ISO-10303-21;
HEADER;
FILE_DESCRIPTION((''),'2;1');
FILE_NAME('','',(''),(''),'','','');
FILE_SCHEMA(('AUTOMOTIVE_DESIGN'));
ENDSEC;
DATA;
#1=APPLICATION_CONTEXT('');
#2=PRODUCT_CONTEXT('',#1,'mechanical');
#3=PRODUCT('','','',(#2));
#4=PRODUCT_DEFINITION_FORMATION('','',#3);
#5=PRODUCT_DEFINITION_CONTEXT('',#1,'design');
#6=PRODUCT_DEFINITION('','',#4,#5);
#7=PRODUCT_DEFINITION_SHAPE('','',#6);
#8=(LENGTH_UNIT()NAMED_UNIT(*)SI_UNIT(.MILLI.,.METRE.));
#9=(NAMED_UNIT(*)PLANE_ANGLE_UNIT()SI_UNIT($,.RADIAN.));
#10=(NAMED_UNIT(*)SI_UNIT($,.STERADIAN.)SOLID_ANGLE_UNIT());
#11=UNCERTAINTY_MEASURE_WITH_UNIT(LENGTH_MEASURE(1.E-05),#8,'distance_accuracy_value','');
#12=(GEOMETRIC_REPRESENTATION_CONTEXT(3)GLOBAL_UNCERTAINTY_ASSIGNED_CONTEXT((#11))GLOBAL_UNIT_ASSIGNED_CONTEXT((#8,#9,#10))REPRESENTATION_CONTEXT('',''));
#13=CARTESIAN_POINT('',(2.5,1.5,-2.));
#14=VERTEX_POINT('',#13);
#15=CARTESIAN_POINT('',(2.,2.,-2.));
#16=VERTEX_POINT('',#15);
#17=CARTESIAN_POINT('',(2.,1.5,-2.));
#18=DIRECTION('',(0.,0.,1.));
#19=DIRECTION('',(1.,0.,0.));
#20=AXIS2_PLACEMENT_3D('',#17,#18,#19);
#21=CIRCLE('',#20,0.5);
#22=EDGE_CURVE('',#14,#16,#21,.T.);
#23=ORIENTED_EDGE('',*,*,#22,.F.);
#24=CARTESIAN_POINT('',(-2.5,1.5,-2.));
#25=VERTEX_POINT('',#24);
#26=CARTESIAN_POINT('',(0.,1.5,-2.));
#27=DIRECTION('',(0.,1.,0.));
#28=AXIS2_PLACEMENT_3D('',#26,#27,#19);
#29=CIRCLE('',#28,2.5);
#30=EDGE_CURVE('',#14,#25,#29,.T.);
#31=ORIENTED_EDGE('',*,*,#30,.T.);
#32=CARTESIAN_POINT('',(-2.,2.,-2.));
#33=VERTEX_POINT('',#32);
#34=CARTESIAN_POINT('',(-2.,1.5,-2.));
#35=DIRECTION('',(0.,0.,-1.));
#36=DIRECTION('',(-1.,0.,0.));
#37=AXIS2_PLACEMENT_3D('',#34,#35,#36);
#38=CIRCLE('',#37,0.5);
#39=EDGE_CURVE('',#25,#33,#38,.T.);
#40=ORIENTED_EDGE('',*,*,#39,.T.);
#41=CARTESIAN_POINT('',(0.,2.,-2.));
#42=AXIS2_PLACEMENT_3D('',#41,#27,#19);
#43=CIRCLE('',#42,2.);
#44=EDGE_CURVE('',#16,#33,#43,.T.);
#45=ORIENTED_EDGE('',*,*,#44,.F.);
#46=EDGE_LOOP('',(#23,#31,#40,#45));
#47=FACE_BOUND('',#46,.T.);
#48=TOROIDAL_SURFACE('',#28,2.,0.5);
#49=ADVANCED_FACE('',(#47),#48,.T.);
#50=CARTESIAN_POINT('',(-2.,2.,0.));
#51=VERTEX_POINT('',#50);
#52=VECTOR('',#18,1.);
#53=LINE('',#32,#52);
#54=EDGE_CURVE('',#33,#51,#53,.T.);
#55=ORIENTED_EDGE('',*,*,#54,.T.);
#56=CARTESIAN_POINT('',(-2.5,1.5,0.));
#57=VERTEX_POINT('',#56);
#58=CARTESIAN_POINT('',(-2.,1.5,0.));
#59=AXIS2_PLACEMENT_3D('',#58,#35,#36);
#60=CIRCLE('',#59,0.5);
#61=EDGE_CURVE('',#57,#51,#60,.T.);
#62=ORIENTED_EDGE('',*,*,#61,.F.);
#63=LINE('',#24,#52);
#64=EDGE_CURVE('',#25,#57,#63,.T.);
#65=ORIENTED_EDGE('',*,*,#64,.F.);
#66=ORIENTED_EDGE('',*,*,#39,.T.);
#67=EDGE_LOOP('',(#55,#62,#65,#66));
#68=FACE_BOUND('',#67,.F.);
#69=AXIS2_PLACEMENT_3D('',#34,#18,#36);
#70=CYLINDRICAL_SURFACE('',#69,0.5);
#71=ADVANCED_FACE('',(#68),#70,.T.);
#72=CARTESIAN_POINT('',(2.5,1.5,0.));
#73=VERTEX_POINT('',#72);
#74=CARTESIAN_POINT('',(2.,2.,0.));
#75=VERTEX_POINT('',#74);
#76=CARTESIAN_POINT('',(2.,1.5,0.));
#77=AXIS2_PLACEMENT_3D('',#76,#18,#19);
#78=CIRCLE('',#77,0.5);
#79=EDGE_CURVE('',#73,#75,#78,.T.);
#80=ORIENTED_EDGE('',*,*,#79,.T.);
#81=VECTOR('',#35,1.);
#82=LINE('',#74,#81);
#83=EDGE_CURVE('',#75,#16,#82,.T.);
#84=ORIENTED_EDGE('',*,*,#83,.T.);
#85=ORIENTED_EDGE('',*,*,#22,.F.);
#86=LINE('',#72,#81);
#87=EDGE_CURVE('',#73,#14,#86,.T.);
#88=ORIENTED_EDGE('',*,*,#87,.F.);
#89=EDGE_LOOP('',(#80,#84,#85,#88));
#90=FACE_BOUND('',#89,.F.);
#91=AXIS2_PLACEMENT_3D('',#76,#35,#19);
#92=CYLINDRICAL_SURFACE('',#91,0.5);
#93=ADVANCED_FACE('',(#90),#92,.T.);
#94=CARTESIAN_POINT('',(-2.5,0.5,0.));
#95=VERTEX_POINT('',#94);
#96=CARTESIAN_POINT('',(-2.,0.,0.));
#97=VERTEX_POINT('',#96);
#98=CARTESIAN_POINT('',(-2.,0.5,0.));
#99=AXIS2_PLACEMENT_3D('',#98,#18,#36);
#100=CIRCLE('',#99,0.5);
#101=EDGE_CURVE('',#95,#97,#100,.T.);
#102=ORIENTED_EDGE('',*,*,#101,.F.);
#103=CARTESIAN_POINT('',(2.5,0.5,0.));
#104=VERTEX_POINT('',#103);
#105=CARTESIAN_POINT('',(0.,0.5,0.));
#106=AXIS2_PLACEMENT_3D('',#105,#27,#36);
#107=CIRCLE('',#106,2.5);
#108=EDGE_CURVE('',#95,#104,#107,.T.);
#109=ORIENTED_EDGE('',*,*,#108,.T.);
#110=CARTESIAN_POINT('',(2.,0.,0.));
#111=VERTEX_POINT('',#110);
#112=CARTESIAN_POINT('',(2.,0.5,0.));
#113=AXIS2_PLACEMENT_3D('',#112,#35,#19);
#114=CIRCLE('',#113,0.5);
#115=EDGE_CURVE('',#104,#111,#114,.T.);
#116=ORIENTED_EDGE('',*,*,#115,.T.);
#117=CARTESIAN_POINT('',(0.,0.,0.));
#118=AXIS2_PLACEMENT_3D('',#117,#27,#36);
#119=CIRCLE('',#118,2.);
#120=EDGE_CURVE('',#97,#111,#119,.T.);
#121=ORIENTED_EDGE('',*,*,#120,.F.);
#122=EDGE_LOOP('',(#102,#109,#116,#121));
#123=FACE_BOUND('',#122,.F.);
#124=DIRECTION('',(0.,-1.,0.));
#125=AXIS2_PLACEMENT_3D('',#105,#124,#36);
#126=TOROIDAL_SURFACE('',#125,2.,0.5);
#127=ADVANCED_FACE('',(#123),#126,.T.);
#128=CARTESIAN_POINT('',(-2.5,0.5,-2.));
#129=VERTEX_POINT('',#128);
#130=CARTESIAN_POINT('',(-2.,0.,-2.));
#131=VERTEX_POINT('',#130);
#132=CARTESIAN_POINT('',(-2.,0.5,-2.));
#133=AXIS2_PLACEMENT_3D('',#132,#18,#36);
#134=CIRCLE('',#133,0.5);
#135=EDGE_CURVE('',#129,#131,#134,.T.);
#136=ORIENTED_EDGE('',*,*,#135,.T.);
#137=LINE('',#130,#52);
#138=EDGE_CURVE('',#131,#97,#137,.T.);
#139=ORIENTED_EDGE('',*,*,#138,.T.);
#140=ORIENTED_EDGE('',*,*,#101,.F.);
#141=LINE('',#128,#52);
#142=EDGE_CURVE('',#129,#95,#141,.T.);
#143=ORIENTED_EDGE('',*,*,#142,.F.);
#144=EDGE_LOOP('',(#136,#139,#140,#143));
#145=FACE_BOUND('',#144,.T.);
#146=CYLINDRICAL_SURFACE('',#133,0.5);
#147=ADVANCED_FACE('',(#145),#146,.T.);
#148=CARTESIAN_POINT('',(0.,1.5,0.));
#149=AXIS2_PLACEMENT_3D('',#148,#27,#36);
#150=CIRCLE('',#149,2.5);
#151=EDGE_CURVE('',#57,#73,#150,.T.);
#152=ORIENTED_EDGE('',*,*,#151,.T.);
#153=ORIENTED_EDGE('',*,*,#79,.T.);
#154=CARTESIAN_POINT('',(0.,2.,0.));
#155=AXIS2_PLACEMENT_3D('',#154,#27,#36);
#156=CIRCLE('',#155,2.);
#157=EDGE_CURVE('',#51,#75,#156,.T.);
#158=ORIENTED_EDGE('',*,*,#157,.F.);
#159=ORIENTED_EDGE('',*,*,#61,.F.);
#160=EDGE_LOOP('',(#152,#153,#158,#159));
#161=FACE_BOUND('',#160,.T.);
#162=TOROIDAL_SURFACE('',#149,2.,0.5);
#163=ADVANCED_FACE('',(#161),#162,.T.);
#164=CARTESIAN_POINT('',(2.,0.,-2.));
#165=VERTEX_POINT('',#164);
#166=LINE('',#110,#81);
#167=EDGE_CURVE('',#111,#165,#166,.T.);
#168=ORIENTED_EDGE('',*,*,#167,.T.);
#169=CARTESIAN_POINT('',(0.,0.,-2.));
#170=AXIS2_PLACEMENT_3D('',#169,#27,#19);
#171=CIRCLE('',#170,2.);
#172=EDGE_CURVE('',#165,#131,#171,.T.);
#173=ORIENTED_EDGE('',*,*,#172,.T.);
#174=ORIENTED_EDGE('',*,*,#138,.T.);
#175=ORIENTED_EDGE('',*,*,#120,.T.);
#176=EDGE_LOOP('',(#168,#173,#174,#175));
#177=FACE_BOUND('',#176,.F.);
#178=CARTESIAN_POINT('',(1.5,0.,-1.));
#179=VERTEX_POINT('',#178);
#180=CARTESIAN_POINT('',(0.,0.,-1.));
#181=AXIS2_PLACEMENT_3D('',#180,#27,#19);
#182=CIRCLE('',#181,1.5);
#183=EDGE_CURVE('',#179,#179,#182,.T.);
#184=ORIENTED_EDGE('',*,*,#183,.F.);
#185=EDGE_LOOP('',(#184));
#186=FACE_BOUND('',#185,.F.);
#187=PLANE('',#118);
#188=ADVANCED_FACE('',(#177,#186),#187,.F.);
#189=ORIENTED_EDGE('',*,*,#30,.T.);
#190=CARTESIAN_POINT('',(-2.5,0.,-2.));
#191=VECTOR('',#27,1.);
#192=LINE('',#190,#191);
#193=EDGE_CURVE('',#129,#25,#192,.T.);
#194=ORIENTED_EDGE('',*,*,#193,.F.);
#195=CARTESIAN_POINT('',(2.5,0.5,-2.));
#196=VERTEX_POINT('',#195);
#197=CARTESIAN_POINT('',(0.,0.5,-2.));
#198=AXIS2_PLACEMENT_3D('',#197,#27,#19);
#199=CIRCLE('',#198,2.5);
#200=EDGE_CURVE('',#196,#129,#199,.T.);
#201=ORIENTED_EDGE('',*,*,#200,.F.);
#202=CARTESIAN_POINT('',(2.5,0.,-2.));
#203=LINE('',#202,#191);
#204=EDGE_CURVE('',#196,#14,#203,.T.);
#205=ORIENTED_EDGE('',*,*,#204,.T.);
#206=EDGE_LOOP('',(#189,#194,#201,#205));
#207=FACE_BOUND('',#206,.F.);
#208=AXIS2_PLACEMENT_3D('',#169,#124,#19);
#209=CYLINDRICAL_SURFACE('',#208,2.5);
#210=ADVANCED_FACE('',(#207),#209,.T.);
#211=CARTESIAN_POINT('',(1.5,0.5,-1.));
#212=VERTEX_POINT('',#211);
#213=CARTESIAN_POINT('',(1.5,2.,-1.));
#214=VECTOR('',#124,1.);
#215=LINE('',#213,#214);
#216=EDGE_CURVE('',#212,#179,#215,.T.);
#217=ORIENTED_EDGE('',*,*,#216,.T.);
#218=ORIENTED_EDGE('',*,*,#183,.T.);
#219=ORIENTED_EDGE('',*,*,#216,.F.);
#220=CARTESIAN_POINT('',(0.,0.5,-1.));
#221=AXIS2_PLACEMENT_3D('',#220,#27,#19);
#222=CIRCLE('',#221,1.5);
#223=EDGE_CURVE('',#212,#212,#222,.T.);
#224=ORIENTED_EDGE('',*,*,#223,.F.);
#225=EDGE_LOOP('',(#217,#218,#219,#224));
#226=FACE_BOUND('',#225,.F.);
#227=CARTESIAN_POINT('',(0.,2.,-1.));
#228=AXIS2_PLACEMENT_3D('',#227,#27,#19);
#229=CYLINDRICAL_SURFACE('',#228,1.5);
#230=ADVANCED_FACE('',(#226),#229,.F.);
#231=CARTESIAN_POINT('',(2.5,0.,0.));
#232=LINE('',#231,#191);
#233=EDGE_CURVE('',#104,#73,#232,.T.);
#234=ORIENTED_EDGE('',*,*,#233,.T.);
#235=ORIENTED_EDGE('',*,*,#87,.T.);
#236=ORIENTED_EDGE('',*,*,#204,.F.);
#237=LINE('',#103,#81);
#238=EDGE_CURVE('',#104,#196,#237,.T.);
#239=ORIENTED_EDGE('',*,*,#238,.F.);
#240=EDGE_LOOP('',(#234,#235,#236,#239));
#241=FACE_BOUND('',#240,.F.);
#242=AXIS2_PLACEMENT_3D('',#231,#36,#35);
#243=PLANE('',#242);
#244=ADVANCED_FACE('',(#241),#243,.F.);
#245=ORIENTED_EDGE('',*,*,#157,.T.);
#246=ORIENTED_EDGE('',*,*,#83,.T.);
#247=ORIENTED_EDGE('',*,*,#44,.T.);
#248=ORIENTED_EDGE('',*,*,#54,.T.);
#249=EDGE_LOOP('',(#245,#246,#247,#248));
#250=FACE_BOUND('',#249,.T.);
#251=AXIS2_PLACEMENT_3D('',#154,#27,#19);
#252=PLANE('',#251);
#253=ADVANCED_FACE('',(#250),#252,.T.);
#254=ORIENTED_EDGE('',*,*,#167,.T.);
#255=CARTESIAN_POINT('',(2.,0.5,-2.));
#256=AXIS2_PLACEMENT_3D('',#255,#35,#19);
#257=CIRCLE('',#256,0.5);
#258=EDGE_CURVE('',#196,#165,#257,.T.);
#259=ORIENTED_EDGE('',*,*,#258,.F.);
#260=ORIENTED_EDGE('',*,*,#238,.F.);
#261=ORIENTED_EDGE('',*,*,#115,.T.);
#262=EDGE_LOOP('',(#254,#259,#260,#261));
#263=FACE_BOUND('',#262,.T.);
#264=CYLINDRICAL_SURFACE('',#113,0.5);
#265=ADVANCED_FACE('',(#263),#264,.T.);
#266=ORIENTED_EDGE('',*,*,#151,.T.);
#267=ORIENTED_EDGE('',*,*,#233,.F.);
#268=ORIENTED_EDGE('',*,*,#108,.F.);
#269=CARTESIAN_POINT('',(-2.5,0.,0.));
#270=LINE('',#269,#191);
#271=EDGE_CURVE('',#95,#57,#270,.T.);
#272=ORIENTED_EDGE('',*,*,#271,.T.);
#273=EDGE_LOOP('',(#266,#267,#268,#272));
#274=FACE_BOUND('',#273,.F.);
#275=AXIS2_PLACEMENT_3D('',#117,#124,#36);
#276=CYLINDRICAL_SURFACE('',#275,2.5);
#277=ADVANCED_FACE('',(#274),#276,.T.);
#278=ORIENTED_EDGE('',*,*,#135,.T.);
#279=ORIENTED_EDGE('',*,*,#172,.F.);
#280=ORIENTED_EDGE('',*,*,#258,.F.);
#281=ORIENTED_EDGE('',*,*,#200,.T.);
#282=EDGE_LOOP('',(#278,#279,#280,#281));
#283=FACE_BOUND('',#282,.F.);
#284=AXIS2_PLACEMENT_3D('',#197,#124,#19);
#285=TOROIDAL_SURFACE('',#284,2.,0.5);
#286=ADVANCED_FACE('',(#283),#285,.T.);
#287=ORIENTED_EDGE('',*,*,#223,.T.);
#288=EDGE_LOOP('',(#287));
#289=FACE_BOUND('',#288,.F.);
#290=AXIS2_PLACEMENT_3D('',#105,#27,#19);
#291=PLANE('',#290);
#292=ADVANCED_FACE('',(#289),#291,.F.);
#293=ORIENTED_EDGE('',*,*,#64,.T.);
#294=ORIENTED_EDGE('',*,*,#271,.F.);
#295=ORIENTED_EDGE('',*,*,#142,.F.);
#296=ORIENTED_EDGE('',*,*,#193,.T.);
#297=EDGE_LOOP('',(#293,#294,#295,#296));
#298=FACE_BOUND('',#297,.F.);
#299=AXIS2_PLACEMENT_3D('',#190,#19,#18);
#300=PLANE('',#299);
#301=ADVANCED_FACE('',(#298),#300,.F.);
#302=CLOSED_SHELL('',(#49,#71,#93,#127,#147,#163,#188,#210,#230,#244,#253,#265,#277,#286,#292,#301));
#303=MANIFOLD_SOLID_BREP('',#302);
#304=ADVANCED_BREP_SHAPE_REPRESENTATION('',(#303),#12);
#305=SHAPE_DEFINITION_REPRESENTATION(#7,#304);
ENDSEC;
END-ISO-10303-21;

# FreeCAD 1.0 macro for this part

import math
import FreeCAD as App
import Part
import Sketcher
from FreeCAD import Vector
Q = App.Units.Quantity


def edges_at(feature, points):
    """Names of the edges that pass closest to the given points."""
    edges = feature.Shape.Edges
    near = lambda p: min(range(len(edges)), key=lambda i: edges[i].distToShape(Part.Vertex(*p))[0])
    return sorted({f"Edge{near(p) + 1}" for p in points})

doc = App.newDocument("Part")
body = doc.addObject("PartDesign::Body", "Body")

# Sketch on XZ plane
sketch1 = body.newObject("Sketcher::SketchObject", "Sketch")
sketch1.AttachmentSupport = (doc.getObject("XZ_Plane"), [""])
sketch1.MapMode = "FlatFace"
sketch1.addGeometry(Part.ArcOfCircle(Part.Circle(Vector(0, 0, 0), Vector(0, 0, 1), 2.5), math.radians(0), math.radians(180)), False)
sketch1.addGeometry(Part.LineSegment(Vector(2.5, 0, 0), Vector(2.5, -2, 0)), False)
sketch1.addGeometry(Part.ArcOfCircle(Part.Circle(Vector(0, -2, 0), Vector(0, 0, 1), 2.5), math.radians(180), math.radians(360)), False)
sketch1.addGeometry(Part.LineSegment(Vector(-2.5, -2, 0), Vector(-2.5, 0, 0)), False)
sketch1.addConstraint(Sketcher.Constraint("Tangent", 0, 1, 1, 1))
sketch1.addConstraint(Sketcher.Constraint("Tangent", 1, 2, 2, 2))
sketch1.addConstraint(Sketcher.Constraint("Tangent", 2, 1, 3, 1))
sketch1.addConstraint(Sketcher.Constraint("Tangent", 3, 2, 0, 2))
sketch1.addConstraint(Sketcher.Constraint("Vertical", 1))
sketch1.addConstraint(Sketcher.Constraint("Vertical", 3))
sketch1.addConstraint(Sketcher.Constraint("Coincident", 0, 3, -1, 1))
sketch1.addConstraint(Sketcher.Constraint("Radius", 0, Q("2.5 mm")))
sketch1.addConstraint(Sketcher.Constraint("DistanceY", 1, 2, 1, 1, Q("2 mm")))
pad1 = body.newObject("PartDesign::Pad", "Pad")
pad1.Profile = sketch1
pad1.Length = 2
pad1.Reversed = True

# Sketch on XZ plane
sketch2 = body.newObject("Sketcher::SketchObject", "Sketch001")
sketch2.AttachmentSupport = (doc.getObject("XZ_Plane"), [""])
sketch2.MapMode = "FlatFace"
sketch2.AttachmentOffset = App.Placement(Vector(0, 0, -2), App.Rotation())
sketch2.addGeometry(Part.Circle(Vector(0, -1, 0), Vector(0, 0, 1), 1.5), False)
sketch2.addConstraint(Sketcher.Constraint("PointOnObject", 0, 3, -2))
sketch2.addConstraint(Sketcher.Constraint("Diameter", 0, Q("3 mm")))
sketch2.addConstraint(Sketcher.Constraint("DistanceY", 0, 3, -1, 1, Q("1 mm")))
pocket1 = body.newObject("PartDesign::Pocket", "Pocket")
pocket1.Profile = sketch2
pocket1.Length = 12.25
pocket1.Reversed = True
doc.recompute()

fillet = body.newObject("PartDesign::Fillet", "Fillet")
fillet.Base = (pocket1, edges_at(pocket1, [
    (2.5, 2, -1),
    (0, 2, -4.5),
    (-2.5, 2, -1),
    (0, 2, 2.5),
    (2.5, 0, -1),
    (0, 0, -4.5),
    (-2.5, 0, -1),
    (0, 0, 2.5),
]))
fillet.Radius = 0.5

# Sketch on XZ plane
sketch3 = body.newObject("Sketcher::SketchObject", "Sketch002")
sketch3.AttachmentSupport = (doc.getObject("XZ_Plane"), [""])
sketch3.MapMode = "FlatFace"
sketch3.AttachmentOffset = App.Placement(Vector(0, 0, -2), App.Rotation())
sketch3.addGeometry(Part.Circle(Vector(0, -1, 0), Vector(0, 0, 1), 1.5), False)
sketch3.addConstraint(Sketcher.Constraint("PointOnObject", 0, 3, -2))
sketch3.addConstraint(Sketcher.Constraint("Diameter", 0, Q("3 mm")))
sketch3.addConstraint(Sketcher.Constraint("DistanceY", 0, 3, -1, 1, Q("1 mm")))
pad2 = body.newObject("PartDesign::Pad", "Pad001")
pad2.Profile = sketch3
pad2.Length = 1.5

doc.recompute()
